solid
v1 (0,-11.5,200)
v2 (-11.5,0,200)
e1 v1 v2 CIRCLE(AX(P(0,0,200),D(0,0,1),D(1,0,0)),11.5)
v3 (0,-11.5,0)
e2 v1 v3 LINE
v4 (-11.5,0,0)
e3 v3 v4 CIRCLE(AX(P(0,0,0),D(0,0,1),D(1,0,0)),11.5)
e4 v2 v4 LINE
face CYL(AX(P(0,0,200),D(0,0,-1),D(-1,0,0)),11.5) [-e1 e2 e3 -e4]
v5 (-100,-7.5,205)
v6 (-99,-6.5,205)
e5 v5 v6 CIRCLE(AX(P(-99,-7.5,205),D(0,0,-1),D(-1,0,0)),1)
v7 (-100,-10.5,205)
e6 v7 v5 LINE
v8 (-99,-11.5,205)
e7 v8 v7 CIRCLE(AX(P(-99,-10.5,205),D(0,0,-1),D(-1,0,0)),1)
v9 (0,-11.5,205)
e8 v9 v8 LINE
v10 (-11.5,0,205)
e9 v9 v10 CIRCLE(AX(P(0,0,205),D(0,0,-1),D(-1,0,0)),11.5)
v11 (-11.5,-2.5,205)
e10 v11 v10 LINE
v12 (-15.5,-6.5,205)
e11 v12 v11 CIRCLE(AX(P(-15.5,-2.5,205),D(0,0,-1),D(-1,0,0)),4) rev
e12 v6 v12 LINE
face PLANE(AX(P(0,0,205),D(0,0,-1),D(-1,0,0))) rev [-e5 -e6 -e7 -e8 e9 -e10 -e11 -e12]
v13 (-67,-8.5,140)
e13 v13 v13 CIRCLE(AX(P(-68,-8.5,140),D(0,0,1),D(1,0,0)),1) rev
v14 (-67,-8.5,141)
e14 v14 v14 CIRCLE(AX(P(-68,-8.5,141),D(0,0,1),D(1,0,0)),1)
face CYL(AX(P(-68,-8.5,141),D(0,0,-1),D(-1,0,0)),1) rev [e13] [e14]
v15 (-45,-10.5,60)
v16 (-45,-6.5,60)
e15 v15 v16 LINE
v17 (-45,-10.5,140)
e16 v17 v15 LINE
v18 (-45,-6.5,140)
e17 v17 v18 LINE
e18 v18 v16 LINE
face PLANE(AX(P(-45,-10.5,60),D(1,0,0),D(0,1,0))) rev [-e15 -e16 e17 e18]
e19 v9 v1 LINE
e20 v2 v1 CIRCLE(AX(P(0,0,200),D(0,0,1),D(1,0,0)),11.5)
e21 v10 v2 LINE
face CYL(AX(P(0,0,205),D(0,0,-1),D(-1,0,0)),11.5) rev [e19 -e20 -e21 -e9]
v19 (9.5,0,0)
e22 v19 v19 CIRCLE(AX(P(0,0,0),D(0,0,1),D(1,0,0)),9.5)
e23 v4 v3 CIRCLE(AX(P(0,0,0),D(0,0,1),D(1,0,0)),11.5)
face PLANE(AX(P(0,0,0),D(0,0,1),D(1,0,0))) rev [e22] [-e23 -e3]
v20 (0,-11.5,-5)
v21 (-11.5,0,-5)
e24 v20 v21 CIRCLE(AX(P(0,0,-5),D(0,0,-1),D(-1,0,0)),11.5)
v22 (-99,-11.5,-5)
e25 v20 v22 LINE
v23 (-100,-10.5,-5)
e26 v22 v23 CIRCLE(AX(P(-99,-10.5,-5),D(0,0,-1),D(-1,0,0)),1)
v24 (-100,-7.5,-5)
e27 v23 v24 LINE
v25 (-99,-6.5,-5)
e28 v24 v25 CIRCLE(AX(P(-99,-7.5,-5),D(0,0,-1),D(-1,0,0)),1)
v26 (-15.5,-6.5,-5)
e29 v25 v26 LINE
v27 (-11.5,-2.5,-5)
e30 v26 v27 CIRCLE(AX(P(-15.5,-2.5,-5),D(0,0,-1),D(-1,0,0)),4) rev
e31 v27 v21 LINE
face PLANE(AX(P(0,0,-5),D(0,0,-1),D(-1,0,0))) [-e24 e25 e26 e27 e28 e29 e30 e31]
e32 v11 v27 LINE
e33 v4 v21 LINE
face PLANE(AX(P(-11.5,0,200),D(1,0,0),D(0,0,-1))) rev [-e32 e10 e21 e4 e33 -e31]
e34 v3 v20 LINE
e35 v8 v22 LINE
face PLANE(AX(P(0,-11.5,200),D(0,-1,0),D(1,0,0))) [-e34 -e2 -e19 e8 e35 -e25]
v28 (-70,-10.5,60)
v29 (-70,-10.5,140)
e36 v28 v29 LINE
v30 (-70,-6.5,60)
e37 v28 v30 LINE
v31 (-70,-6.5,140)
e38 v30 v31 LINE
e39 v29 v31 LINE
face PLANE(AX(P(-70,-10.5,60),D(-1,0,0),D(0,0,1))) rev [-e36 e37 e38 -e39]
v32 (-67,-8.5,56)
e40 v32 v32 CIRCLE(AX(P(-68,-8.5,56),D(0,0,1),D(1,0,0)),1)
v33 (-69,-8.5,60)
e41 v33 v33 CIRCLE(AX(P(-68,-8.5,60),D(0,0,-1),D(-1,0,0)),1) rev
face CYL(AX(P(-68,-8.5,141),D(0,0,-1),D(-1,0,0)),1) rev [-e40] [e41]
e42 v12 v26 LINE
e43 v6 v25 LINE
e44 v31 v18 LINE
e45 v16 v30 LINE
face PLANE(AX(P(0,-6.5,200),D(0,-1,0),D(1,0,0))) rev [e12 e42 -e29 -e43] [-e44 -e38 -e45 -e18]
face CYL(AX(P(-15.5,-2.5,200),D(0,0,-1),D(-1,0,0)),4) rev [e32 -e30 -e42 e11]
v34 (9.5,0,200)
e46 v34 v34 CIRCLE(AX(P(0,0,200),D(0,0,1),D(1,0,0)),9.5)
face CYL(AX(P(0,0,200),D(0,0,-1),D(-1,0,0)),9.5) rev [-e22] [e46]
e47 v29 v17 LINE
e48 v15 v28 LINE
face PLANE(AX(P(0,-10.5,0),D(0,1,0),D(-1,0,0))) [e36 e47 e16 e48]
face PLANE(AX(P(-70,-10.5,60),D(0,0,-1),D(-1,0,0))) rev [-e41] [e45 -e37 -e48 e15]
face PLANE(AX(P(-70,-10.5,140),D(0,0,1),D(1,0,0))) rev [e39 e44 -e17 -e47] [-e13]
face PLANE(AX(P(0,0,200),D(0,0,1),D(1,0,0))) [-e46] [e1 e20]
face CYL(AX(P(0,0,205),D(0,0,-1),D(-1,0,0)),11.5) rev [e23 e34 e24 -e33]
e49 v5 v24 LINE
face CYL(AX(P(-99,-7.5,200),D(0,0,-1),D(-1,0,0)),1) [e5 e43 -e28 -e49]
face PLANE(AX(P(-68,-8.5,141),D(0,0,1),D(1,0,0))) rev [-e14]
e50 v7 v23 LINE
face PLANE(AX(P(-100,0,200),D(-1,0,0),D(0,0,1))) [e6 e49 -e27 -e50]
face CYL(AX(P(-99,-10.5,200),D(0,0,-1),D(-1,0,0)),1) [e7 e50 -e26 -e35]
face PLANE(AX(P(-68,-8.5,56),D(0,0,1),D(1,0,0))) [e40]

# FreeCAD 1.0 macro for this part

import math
import FreeCAD as App
import Part
import Sketcher
from FreeCAD import Vector
Q = App.Units.Quantity


def add_polygon(sketch, points):
    """Adds a closed chain of lines whose ends are joined by coincident constraints."""
    first, n = sketch.GeometryCount, len(points)
    for a, b in zip(points, points[1:] + points[:1]):
        sketch.addGeometry(Part.LineSegment(App.Vector(*a, 0), App.Vector(*b, 0)), False)
    for i in range(n):
        sketch.addConstraint(Sketcher.Constraint("Coincident", first + i, 2, first + (i + 1) % n, 1))

doc = App.newDocument("Part")
body = doc.addObject("PartDesign::Body", "Body")

# Sketch on XY plane
sketch1 = doc.addObject("Sketcher::SketchObject", "Sketch")
body.addObject(sketch1)
sketch1.AttachmentSupport = (doc.XY_Plane, [""])
sketch1.MapMode = "FlatFace"
sketch1.addGeometry([
    Part.LineSegment(Vector(-11.5, 0, 0), Vector(-11.5, -2.5, 0)),  # 0
    Part.ArcOfCircle(Part.Circle(Vector(-15.5, -2.5, 0), Vector(0, 0, 1), 4), math.radians(-90), math.radians(0)),  # 1
    Part.LineSegment(Vector(-15.5, -6.5, 0), Vector(-99, -6.5, 0)),  # 2
    Part.ArcOfCircle(Part.Circle(Vector(-99, -7.5, 0), Vector(0, 0, 1), 1), math.radians(90), math.radians(180)),  # 3
    Part.LineSegment(Vector(-100, -7.5, 0), Vector(-100, -10.5, 0)),  # 4
    Part.ArcOfCircle(Part.Circle(Vector(-99, -10.5, 0), Vector(0, 0, 1), 1), math.radians(-180), math.radians(-90)),  # 5
    Part.LineSegment(Vector(-99, -11.5, 0), Vector(0, -11.5, 0)),  # 6
    Part.ArcOfCircle(Part.Circle(Vector(0, 0, 0), Vector(0, 0, 1), 11.5), math.radians(-90), math.radians(180)),  # 7
    Part.Circle(Vector(0, 0, 0), Vector(0, 0, 1), 9.5),  # 8
], False)
sketch1.addConstraint([
    Sketcher.Constraint("Tangent", 0, 2, 1, 2),
    Sketcher.Constraint("Tangent", 1, 1, 2, 1),
    Sketcher.Constraint("Tangent", 2, 2, 3, 1),
    Sketcher.Constraint("Tangent", 3, 2, 4, 1),
    Sketcher.Constraint("Tangent", 4, 2, 5, 1),
    Sketcher.Constraint("Tangent", 5, 2, 6, 1),
    Sketcher.Constraint("Tangent", 6, 2, 7, 1),
    Sketcher.Constraint("Tangent", 7, 2, 0, 1),
    Sketcher.Constraint("Vertical", 0),
    Sketcher.Constraint("Horizontal", 2),
    Sketcher.Constraint("Vertical", 4),
    Sketcher.Constraint("Horizontal", 6),
    Sketcher.Constraint("Coincident", 7, 3, -1, 1),
    Sketcher.Constraint("Coincident", 8, 3, -1, 1),
    Sketcher.Constraint("Equal", 3, 5),
    Sketcher.Constraint("Diameter", 8, Q("19 mm")),
    Sketcher.Constraint("Radius", 1, Q("4 mm")),
    Sketcher.Constraint("Radius", 3, Q("1 mm")),
    Sketcher.Constraint("Radius", 7, Q("11.5 mm")),
    Sketcher.Constraint("DistanceX", 6, 1, 6, 2, Q("99 mm")),
    Sketcher.Constraint("DistanceY", 4, 2, 4, 1, Q("3 mm")),
])
pad1 = doc.addObject("PartDesign::Pad", "Pad")
body.addObject(pad1)
pad1.Profile = sketch1
pad1.Length = 200

# Sketch on XY plane
sketch2 = doc.addObject("Sketcher::SketchObject", "Sketch001")
body.addObject(sketch2)
sketch2.AttachmentSupport = (doc.XY_Plane, [""])
sketch2.MapMode = "FlatFace"
sketch2.addGeometry([
    Part.LineSegment(Vector(-11.5, -2.5, 0), Vector(-11.5, 0, 0)),  # 0
    Part.ArcOfCircle(Part.Circle(Vector(0, 0, 0), Vector(0, 0, 1), 11.5), math.radians(180), math.radians(270)),  # 1
    Part.LineSegment(Vector(0, -11.5, 0), Vector(-99, -11.5, 0)),  # 2
    Part.ArcOfCircle(Part.Circle(Vector(-99, -10.5, 0), Vector(0, 0, 1), 1), math.radians(-180), math.radians(-90)),  # 3
    Part.LineSegment(Vector(-100, -10.5, 0), Vector(-100, -7.5, 0)),  # 4
    Part.ArcOfCircle(Part.Circle(Vector(-99, -7.5, 0), Vector(0, 0, 1), 1), math.radians(90), math.radians(180)),  # 5
    Part.LineSegment(Vector(-99, -6.5, 0), Vector(-15.5, -6.5, 0)),  # 6
    Part.ArcOfCircle(Part.Circle(Vector(-15.5, -2.5, 0), Vector(0, 0, 1), 4), math.radians(-90), math.radians(0)),  # 7
], False)
sketch2.addConstraint([
    Sketcher.Constraint("Tangent", 0, 2, 1, 1),
    Sketcher.Constraint("Tangent", 1, 2, 2, 1),
    Sketcher.Constraint("Tangent", 2, 2, 3, 2),
    Sketcher.Constraint("Tangent", 3, 1, 4, 1),
    Sketcher.Constraint("Tangent", 4, 2, 5, 2),
    Sketcher.Constraint("Tangent", 5, 1, 6, 1),
    Sketcher.Constraint("Tangent", 6, 2, 7, 1),
    Sketcher.Constraint("Tangent", 7, 2, 0, 1),
    Sketcher.Constraint("Vertical", 0),
    Sketcher.Constraint("Horizontal", 2),
    Sketcher.Constraint("Vertical", 4),
    Sketcher.Constraint("Horizontal", 6),
    Sketcher.Constraint("Coincident", 1, 3, -1, 1),
    Sketcher.Constraint("Equal", 3, 5),
    Sketcher.Constraint("Radius", 3, Q("1 mm")),
    Sketcher.Constraint("Radius", 7, Q("4 mm")),
    Sketcher.Constraint("Radius", 1, Q("11.5 mm")),
    Sketcher.Constraint("DistanceX", 2, 2, 2, 1, Q("99 mm")),
    Sketcher.Constraint("DistanceY", 4, 1, 4, 2, Q("3 mm")),
])
pad2 = doc.addObject("PartDesign::Pad", "Pad001")
body.addObject(pad2)
pad2.Profile = sketch2
pad2.Type = "TwoLengths"
pad2.Length = 5
pad2.Length2 = 205
pad2.Reversed = True

# Sketch on XZ plane
sketch3 = doc.addObject("Sketcher::SketchObject", "Sketch002")
body.addObject(sketch3)
sketch3.AttachmentSupport = (doc.XZ_Plane, [""])
sketch3.MapMode = "FlatFace"
sketch3.AttachmentOffset = App.Placement(Vector(0, 0, 6.5), App.Rotation())
add_polygon(sketch3, [(-70, 60), (-70, 140), (-45, 140), (-45, 60)])  # lines 0-3
sketch3.addConstraint([
    Sketcher.Constraint("Vertical", 0),
    Sketcher.Constraint("Horizontal", 1),
    Sketcher.Constraint("Vertical", 2),
    Sketcher.Constraint("Horizontal", 3),
    Sketcher.Constraint("DistanceX", 1, 1, 1, 2, Q("25 mm")),
    Sketcher.Constraint("DistanceY", 0, 1, 0, 2, Q("80 mm")),
    Sketcher.Constraint("DistanceX", 0, 2, -1, 1, Q("70 mm")),
    Sketcher.Constraint("DistanceY", -1, 1, 0, 2, Q("140 mm")),
])
pocket1 = doc.addObject("PartDesign::Pocket", "Pocket")
body.addObject(pocket1)
pocket1.Profile = sketch3
pocket1.Length = 4
pocket1.Reversed = True

# Sketch on XY plane
sketch4 = doc.addObject("Sketcher::SketchObject", "Sketch003")
body.addObject(sketch4)
sketch4.AttachmentSupport = (doc.XY_Plane, [""])
sketch4.MapMode = "FlatFace"
sketch4.AttachmentOffset = App.Placement(Vector(0, 0, 60), App.Rotation())
sketch4.addGeometry(Part.Circle(Vector(-68, -8.5, 0), Vector(0, 0, 1), 1), False)
sketch4.addConstraint([
    Sketcher.Constraint("Diameter", 0, Q("2 mm")),
    Sketcher.Constraint("DistanceX", 0, 3, -1, 1, Q("68 mm")),
    Sketcher.Constraint("DistanceY", 0, 3, -1, 1, Q("8.5 mm")),
])
pocket2 = doc.addObject("PartDesign::Pocket", "Pocket001")
body.addObject(pocket2)
pocket2.Profile = sketch4
pocket2.Type = "TwoLengths"
pocket2.Length = 81
pocket2.Length2 = 4
pocket2.Reversed = True

doc.recompute()
